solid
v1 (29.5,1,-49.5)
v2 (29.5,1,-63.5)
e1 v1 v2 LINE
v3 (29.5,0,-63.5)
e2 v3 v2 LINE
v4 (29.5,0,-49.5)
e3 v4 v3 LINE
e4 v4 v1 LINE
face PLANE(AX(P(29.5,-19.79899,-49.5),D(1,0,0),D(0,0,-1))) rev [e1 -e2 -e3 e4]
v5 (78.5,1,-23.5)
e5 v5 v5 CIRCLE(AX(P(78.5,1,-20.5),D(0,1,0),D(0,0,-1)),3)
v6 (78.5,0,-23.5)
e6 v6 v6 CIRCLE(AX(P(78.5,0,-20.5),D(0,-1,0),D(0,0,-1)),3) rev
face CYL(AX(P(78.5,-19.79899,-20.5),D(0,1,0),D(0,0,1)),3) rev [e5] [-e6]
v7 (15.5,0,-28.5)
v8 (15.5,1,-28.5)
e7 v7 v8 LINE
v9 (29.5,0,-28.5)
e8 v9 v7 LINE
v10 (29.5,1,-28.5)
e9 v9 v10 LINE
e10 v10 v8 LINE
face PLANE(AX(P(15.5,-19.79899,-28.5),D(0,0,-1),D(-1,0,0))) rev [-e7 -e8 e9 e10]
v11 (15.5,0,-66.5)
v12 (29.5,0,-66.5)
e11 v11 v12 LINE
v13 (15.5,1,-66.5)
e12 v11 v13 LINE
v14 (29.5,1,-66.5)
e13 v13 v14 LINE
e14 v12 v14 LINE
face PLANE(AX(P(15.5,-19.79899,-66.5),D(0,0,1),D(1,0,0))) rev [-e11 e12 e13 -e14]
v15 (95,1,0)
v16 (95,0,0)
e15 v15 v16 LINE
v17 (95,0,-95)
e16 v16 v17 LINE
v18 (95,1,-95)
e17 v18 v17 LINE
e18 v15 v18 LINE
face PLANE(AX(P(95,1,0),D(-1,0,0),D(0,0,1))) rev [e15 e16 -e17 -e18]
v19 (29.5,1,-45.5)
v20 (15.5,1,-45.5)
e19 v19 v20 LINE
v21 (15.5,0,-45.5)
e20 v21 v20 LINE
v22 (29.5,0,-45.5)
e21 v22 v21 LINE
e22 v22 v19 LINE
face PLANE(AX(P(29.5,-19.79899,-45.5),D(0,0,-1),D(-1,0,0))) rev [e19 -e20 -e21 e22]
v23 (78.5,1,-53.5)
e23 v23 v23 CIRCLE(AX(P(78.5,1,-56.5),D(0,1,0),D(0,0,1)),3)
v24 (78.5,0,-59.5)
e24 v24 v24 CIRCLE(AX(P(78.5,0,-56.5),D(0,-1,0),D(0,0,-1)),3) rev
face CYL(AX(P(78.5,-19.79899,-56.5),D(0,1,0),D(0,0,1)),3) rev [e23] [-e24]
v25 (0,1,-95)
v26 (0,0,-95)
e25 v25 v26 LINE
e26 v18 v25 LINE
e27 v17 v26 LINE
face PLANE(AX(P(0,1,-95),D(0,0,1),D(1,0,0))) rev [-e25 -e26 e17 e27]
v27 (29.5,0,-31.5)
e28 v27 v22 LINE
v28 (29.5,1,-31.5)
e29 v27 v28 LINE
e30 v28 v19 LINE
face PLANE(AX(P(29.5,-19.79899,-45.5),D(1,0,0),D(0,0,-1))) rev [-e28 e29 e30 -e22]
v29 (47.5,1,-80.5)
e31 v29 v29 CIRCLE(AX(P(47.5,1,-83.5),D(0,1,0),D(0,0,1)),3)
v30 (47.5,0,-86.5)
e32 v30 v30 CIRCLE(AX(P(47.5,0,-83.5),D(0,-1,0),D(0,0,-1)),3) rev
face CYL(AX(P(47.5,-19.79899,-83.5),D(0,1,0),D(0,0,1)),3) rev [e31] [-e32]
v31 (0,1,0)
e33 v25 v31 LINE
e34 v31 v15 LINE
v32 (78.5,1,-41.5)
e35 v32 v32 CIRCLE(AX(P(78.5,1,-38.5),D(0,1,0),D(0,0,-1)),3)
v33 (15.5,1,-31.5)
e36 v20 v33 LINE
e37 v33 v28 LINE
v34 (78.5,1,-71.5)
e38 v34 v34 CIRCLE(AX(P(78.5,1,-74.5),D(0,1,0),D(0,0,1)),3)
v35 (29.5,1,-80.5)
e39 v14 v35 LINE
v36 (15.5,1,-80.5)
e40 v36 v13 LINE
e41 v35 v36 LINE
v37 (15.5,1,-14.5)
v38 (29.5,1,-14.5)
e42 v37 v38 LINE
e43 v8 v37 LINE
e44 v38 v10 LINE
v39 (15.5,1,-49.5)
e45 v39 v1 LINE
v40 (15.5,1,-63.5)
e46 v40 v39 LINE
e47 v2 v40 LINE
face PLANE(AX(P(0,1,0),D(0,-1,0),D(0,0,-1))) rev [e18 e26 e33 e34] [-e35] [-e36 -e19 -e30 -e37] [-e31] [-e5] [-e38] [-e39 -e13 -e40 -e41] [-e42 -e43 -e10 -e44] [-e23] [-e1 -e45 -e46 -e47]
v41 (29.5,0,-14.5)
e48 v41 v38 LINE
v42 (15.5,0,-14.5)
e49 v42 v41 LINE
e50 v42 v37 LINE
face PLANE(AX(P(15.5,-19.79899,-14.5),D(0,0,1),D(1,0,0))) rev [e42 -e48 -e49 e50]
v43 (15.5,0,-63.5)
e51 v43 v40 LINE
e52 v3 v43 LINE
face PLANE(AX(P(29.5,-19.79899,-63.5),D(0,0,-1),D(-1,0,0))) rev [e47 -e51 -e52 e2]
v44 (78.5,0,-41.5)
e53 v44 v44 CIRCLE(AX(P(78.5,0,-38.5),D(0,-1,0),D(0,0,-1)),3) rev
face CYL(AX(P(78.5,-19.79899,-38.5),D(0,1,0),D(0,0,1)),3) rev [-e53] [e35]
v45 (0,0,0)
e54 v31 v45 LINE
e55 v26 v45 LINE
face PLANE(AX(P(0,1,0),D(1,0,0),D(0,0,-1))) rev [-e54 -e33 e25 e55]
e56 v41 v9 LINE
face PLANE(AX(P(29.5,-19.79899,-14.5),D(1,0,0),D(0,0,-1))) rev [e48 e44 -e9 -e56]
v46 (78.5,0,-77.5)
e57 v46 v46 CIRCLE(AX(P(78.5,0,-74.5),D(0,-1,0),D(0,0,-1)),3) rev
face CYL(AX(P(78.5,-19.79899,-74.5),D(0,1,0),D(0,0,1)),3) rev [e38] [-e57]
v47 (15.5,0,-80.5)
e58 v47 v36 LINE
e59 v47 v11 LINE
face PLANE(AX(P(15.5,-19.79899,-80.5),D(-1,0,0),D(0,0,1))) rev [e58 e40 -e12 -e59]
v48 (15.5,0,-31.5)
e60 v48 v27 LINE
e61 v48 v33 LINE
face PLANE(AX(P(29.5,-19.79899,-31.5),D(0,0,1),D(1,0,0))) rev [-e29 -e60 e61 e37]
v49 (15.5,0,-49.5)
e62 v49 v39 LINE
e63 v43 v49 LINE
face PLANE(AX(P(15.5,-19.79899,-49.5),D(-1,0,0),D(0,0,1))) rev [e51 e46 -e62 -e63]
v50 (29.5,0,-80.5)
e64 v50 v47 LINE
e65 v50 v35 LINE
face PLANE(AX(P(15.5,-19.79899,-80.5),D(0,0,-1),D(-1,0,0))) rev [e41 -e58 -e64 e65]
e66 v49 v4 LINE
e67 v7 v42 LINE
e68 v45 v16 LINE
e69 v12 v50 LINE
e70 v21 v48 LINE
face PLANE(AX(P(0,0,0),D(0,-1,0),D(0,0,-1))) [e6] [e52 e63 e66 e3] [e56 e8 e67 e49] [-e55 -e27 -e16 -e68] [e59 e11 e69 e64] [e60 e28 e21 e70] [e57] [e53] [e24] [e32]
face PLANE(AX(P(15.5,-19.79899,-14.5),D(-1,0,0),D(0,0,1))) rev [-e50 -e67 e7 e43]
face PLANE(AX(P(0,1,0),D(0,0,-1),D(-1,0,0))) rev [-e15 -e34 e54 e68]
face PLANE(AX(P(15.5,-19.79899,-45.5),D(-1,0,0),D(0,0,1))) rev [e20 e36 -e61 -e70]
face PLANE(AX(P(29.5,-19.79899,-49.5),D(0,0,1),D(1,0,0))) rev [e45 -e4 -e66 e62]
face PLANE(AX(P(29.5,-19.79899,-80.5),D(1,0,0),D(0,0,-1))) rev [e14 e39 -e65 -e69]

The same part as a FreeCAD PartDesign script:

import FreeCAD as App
import Part
import Sketcher

V = App.Vector
Q = App.Units.Quantity

doc = App.newDocument("Part")
params = doc.addObject("Spreadsheet::Sheet", "Params")
for row, (alias, value) in enumerate([
    ("sketch1_width", "95 mm"),
    ("pad1_length", "1 mm"),
    ("sketch2_diameter", "6 mm"),
    ("sketch2_width", "14 mm"),
    ("pocket1_length", "1 mm"),
], start=1):
    params.set(f"A{row}", alias)
    params.set(f"B{row}", "=" + value)
    params.setAlias(f"B{row}", alias)

body = doc.addObject("PartDesign::Body", "Body")

# Sketch on XZ plane
sketch1 = body.newObject("Sketcher::SketchObject", "Sketch")
sketch1.AttachmentSupport = (doc.getObject("XZ_Plane"), [""])
sketch1.MapMode = "FlatFace"
sketch1.addGeometry(Part.LineSegment(V(0, -95, 0), V(0, 0, 0)), False)
sketch1.addGeometry(Part.LineSegment(V(0, 0, 0), V(95, 0, 0)), False)
sketch1.addGeometry(Part.LineSegment(V(95, 0, 0), V(95, -95, 0)), False)
sketch1.addGeometry(Part.LineSegment(V(95, -95, 0), V(0, -95, 0)), False)
sketch1.addConstraint(Sketcher.Constraint("Coincident", 0, 2, 1, 1))
sketch1.addConstraint(Sketcher.Constraint("Coincident", 1, 2, 2, 1))
sketch1.addConstraint(Sketcher.Constraint("Coincident", 2, 2, 3, 1))
sketch1.addConstraint(Sketcher.Constraint("Coincident", 3, 2, 0, 1))
sketch1.addConstraint(Sketcher.Constraint("Vertical", 0))
sketch1.addConstraint(Sketcher.Constraint("Horizontal", 1))
sketch1.addConstraint(Sketcher.Constraint("Vertical", 2))
sketch1.addConstraint(Sketcher.Constraint("Horizontal", 3))
sketch1.addConstraint(Sketcher.Constraint("Coincident", 0, 2, -1, 1))
sketch1.addConstraint(Sketcher.Constraint("Equal", 3, 0))
sketch1.addConstraint(Sketcher.Constraint("DistanceX", 1, 1, 1, 2, Q("95 mm")))
sketch1.setExpression("Constraints[10]", "Params.sketch1_width")
pad1 = body.newObject("PartDesign::Pad", "Pad")
pad1.Profile = sketch1
pad1.setExpression("Length", "Params.pad1_length")
pad1.Reversed = True

# Sketch on XZ plane
sketch2 = body.newObject("Sketcher::SketchObject", "Sketch001")
sketch2.AttachmentSupport = (doc.getObject("XZ_Plane"), [""])
sketch2.MapMode = "FlatFace"
sketch2.AttachmentOffset = App.Placement(V(0, 0, -1), App.Rotation())
sketch2.addGeometry(Part.Circle(V(47.5, -83.5, 0), V(0, 0, 1), 3), False)
sketch2.addGeometry(Part.Circle(V(78.5, -74.5, 0), V(0, 0, 1), 3), False)
sketch2.addGeometry(Part.Circle(V(78.5, -56.5, 0), V(0, 0, 1), 3), False)
sketch2.addGeometry(Part.Circle(V(78.5, -38.5, 0), V(0, 0, 1), 3), False)
sketch2.addGeometry(Part.Circle(V(78.5, -20.5, 0), V(0, 0, 1), 3), False)
sketch2.addGeometry(Part.LineSegment(V(15.5, -63.5, 0), V(15.5, -49.5, 0)), False)
sketch2.addGeometry(Part.LineSegment(V(15.5, -49.5, 0), V(29.5, -49.5, 0)), False)
sketch2.addGeometry(Part.LineSegment(V(29.5, -49.5, 0), V(29.5, -63.5, 0)), False)
sketch2.addGeometry(Part.LineSegment(V(29.5, -63.5, 0), V(15.5, -63.5, 0)), False)
sketch2.addGeometry(Part.LineSegment(V(15.5, -80.5, 0), V(15.5, -66.5, 0)), False)
sketch2.addGeometry(Part.LineSegment(V(15.5, -66.5, 0), V(29.5, -66.5, 0)), False)
sketch2.addGeometry(Part.LineSegment(V(29.5, -66.5, 0), V(29.5, -80.5, 0)), False)
sketch2.addGeometry(Part.LineSegment(V(29.5, -80.5, 0), V(15.5, -80.5, 0)), False)
sketch2.addGeometry(Part.LineSegment(V(15.5, -28.5, 0), V(15.5, -14.5, 0)), False)
sketch2.addGeometry(Part.LineSegment(V(15.5, -14.5, 0), V(29.5, -14.5, 0)), False)
sketch2.addGeometry(Part.LineSegment(V(29.5, -14.5, 0), V(29.5, -28.5, 0)), False)
sketch2.addGeometry(Part.LineSegment(V(29.5, -28.5, 0), V(15.5, -28.5, 0)), False)
sketch2.addGeometry(Part.LineSegment(V(15.5, -45.5, 0), V(15.5, -31.5, 0)), False)
sketch2.addGeometry(Part.LineSegment(V(15.5, -31.5, 0), V(29.5, -31.5, 0)), False)
sketch2.addGeometry(Part.LineSegment(V(29.5, -31.5, 0), V(29.5, -45.5, 0)), False)
sketch2.addGeometry(Part.LineSegment(V(29.5, -45.5, 0), V(15.5, -45.5, 0)), False)
sketch2.addConstraint(Sketcher.Constraint("Coincident", 5, 2, 6, 1))
sketch2.addConstraint(Sketcher.Constraint("Coincident", 6, 2, 7, 1))
sketch2.addConstraint(Sketcher.Constraint("Coincident", 7, 2, 8, 1))
sketch2.addConstraint(Sketcher.Constraint("Coincident", 8, 2, 5, 1))
sketch2.addConstraint(Sketcher.Constraint("Coincident", 9, 2, 10, 1))
sketch2.addConstraint(Sketcher.Constraint("Coincident", 10, 2, 11, 1))
sketch2.addConstraint(Sketcher.Constraint("Coincident", 11, 2, 12, 1))
sketch2.addConstraint(Sketcher.Constraint("Coincident", 12, 2, 9, 1))
sketch2.addConstraint(Sketcher.Constraint("Coincident", 13, 2, 14, 1))
sketch2.addConstraint(Sketcher.Constraint("Coincident", 14, 2, 15, 1))
sketch2.addConstraint(Sketcher.Constraint("Coincident", 15, 2, 16, 1))
sketch2.addConstraint(Sketcher.Constraint("Coincident", 16, 2, 13, 1))
sketch2.addConstraint(Sketcher.Constraint("Coincident", 17, 2, 18, 1))
sketch2.addConstraint(Sketcher.Constraint("Coincident", 18, 2, 19, 1))
sketch2.addConstraint(Sketcher.Constraint("Coincident", 19, 2, 20, 1))
sketch2.addConstraint(Sketcher.Constraint("Coincident", 20, 2, 17, 1))
sketch2.addConstraint(Sketcher.Constraint("Vertical", 5))
sketch2.addConstraint(Sketcher.Constraint("Horizontal", 6))
sketch2.addConstraint(Sketcher.Constraint("Vertical", 7))
sketch2.addConstraint(Sketcher.Constraint("Horizontal", 8))
sketch2.addConstraint(Sketcher.Constraint("Vertical", 9))
sketch2.addConstraint(Sketcher.Constraint("Horizontal", 10))
sketch2.addConstraint(Sketcher.Constraint("Vertical", 11))
sketch2.addConstraint(Sketcher.Constraint("Horizontal", 12))
sketch2.addConstraint(Sketcher.Constraint("Vertical", 13))
sketch2.addConstraint(Sketcher.Constraint("Horizontal", 14))
sketch2.addConstraint(Sketcher.Constraint("Vertical", 15))
sketch2.addConstraint(Sketcher.Constraint("Horizontal", 16))
sketch2.addConstraint(Sketcher.Constraint("Vertical", 17))
sketch2.addConstraint(Sketcher.Constraint("Horizontal", 18))
sketch2.addConstraint(Sketcher.Constraint("Vertical", 19))
sketch2.addConstraint(Sketcher.Constraint("Horizontal", 20))
sketch2.addConstraint(Sketcher.Constraint("Equal", 0, 1))
sketch2.addConstraint(Sketcher.Constraint("Equal", 1, 2))
sketch2.addConstraint(Sketcher.Constraint("Equal", 2, 3))
sketch2.addConstraint(Sketcher.Constraint("Equal", 3, 4))
sketch2.addConstraint(Sketcher.Constraint("Vertical", 1, 3, 2, 3))
sketch2.addConstraint(Sketcher.Constraint("Vertical", 2, 3, 3, 3))
sketch2.addConstraint(Sketcher.Constraint("Vertical", 3, 3, 4, 3))
sketch2.addConstraint(Sketcher.Constraint("Vertical", 8, 2, 9, 2))
sketch2.addConstraint(Sketcher.Constraint("Vertical", 7, 2, 10, 2))
sketch2.addConstraint(Sketcher.Constraint("Vertical", 12, 2, 13, 2))
sketch2.addConstraint(Sketcher.Constraint("Vertical", 11, 2, 14, 2))
sketch2.addConstraint(Sketcher.Constraint("Vertical", 16, 2, 17, 2))
sketch2.addConstraint(Sketcher.Constraint("Vertical", 15, 2, 18, 2))
sketch2.addConstraint(Sketcher.Constraint("Equal", 20, 5))
sketch2.addConstraint(Sketcher.Constraint("Equal", 7, 9))
sketch2.addConstraint(Sketcher.Constraint("Equal", 11, 13))
sketch2.addConstraint(Sketcher.Constraint("Equal", 15, 17))
sketch2.addConstraint(Sketcher.Constraint("Diameter", 0, Q("6 mm")))
sketch2.addConstraint(Sketcher.Constraint("DistanceX", 6, 1, 6, 2, Q("14 mm")))
sketch2.addConstraint(Sketcher.Constraint("DistanceX", 0, 3, 1, 3, Q("31 mm")))
sketch2.addConstraint(Sketcher.Constraint("DistanceY", 0, 3, 1, 3, Q("9 mm")))
sketch2.addConstraint(Sketcher.Constraint("DistanceY", 1, 3, 2, 3, Q("18 mm")))
sketch2.addConstraint(Sketcher.Constraint("DistanceY", 2, 3, 3, 3, Q("18 mm")))
sketch2.addConstraint(Sketcher.Constraint("DistanceY", 3, 3, 4, 3, Q("18 mm")))
sketch2.addConstraint(Sketcher.Constraint("DistanceX", 5, 2, 0, 3, Q("32 mm")))
sketch2.addConstraint(Sketcher.Constraint("DistanceY", 0, 3, 5, 2, Q("34 mm")))
sketch2.addConstraint(Sketcher.Constraint("DistanceY", 9, 2, 8, 2, Q("3 mm")))
sketch2.addConstraint(Sketcher.Constraint("DistanceY", 5, 2, 13, 2, Q("35 mm")))
sketch2.addConstraint(Sketcher.Constraint("DistanceY", 17, 2, 16, 2, Q("3 mm")))
sketch2.addConstraint(Sketcher.Constraint("DistanceX", -1, 1, 0, 3, Q("47.5 mm")))
sketch2.addConstraint(Sketcher.Constraint("DistanceY", 0, 3, -1, 1, Q("83.5 mm")))
sketch2.setExpression("Constraints[49]", "Params.sketch2_diameter")
sketch2.setExpression("Constraints[50]", "Params.sketch2_width")
pocket1 = body.newObject("PartDesign::Pocket", "Pocket")
pocket1.Profile = sketch2
pocket1.setExpression("Length", "Params.pocket1_length")
pocket1.Reversed = True

doc.recompute()
